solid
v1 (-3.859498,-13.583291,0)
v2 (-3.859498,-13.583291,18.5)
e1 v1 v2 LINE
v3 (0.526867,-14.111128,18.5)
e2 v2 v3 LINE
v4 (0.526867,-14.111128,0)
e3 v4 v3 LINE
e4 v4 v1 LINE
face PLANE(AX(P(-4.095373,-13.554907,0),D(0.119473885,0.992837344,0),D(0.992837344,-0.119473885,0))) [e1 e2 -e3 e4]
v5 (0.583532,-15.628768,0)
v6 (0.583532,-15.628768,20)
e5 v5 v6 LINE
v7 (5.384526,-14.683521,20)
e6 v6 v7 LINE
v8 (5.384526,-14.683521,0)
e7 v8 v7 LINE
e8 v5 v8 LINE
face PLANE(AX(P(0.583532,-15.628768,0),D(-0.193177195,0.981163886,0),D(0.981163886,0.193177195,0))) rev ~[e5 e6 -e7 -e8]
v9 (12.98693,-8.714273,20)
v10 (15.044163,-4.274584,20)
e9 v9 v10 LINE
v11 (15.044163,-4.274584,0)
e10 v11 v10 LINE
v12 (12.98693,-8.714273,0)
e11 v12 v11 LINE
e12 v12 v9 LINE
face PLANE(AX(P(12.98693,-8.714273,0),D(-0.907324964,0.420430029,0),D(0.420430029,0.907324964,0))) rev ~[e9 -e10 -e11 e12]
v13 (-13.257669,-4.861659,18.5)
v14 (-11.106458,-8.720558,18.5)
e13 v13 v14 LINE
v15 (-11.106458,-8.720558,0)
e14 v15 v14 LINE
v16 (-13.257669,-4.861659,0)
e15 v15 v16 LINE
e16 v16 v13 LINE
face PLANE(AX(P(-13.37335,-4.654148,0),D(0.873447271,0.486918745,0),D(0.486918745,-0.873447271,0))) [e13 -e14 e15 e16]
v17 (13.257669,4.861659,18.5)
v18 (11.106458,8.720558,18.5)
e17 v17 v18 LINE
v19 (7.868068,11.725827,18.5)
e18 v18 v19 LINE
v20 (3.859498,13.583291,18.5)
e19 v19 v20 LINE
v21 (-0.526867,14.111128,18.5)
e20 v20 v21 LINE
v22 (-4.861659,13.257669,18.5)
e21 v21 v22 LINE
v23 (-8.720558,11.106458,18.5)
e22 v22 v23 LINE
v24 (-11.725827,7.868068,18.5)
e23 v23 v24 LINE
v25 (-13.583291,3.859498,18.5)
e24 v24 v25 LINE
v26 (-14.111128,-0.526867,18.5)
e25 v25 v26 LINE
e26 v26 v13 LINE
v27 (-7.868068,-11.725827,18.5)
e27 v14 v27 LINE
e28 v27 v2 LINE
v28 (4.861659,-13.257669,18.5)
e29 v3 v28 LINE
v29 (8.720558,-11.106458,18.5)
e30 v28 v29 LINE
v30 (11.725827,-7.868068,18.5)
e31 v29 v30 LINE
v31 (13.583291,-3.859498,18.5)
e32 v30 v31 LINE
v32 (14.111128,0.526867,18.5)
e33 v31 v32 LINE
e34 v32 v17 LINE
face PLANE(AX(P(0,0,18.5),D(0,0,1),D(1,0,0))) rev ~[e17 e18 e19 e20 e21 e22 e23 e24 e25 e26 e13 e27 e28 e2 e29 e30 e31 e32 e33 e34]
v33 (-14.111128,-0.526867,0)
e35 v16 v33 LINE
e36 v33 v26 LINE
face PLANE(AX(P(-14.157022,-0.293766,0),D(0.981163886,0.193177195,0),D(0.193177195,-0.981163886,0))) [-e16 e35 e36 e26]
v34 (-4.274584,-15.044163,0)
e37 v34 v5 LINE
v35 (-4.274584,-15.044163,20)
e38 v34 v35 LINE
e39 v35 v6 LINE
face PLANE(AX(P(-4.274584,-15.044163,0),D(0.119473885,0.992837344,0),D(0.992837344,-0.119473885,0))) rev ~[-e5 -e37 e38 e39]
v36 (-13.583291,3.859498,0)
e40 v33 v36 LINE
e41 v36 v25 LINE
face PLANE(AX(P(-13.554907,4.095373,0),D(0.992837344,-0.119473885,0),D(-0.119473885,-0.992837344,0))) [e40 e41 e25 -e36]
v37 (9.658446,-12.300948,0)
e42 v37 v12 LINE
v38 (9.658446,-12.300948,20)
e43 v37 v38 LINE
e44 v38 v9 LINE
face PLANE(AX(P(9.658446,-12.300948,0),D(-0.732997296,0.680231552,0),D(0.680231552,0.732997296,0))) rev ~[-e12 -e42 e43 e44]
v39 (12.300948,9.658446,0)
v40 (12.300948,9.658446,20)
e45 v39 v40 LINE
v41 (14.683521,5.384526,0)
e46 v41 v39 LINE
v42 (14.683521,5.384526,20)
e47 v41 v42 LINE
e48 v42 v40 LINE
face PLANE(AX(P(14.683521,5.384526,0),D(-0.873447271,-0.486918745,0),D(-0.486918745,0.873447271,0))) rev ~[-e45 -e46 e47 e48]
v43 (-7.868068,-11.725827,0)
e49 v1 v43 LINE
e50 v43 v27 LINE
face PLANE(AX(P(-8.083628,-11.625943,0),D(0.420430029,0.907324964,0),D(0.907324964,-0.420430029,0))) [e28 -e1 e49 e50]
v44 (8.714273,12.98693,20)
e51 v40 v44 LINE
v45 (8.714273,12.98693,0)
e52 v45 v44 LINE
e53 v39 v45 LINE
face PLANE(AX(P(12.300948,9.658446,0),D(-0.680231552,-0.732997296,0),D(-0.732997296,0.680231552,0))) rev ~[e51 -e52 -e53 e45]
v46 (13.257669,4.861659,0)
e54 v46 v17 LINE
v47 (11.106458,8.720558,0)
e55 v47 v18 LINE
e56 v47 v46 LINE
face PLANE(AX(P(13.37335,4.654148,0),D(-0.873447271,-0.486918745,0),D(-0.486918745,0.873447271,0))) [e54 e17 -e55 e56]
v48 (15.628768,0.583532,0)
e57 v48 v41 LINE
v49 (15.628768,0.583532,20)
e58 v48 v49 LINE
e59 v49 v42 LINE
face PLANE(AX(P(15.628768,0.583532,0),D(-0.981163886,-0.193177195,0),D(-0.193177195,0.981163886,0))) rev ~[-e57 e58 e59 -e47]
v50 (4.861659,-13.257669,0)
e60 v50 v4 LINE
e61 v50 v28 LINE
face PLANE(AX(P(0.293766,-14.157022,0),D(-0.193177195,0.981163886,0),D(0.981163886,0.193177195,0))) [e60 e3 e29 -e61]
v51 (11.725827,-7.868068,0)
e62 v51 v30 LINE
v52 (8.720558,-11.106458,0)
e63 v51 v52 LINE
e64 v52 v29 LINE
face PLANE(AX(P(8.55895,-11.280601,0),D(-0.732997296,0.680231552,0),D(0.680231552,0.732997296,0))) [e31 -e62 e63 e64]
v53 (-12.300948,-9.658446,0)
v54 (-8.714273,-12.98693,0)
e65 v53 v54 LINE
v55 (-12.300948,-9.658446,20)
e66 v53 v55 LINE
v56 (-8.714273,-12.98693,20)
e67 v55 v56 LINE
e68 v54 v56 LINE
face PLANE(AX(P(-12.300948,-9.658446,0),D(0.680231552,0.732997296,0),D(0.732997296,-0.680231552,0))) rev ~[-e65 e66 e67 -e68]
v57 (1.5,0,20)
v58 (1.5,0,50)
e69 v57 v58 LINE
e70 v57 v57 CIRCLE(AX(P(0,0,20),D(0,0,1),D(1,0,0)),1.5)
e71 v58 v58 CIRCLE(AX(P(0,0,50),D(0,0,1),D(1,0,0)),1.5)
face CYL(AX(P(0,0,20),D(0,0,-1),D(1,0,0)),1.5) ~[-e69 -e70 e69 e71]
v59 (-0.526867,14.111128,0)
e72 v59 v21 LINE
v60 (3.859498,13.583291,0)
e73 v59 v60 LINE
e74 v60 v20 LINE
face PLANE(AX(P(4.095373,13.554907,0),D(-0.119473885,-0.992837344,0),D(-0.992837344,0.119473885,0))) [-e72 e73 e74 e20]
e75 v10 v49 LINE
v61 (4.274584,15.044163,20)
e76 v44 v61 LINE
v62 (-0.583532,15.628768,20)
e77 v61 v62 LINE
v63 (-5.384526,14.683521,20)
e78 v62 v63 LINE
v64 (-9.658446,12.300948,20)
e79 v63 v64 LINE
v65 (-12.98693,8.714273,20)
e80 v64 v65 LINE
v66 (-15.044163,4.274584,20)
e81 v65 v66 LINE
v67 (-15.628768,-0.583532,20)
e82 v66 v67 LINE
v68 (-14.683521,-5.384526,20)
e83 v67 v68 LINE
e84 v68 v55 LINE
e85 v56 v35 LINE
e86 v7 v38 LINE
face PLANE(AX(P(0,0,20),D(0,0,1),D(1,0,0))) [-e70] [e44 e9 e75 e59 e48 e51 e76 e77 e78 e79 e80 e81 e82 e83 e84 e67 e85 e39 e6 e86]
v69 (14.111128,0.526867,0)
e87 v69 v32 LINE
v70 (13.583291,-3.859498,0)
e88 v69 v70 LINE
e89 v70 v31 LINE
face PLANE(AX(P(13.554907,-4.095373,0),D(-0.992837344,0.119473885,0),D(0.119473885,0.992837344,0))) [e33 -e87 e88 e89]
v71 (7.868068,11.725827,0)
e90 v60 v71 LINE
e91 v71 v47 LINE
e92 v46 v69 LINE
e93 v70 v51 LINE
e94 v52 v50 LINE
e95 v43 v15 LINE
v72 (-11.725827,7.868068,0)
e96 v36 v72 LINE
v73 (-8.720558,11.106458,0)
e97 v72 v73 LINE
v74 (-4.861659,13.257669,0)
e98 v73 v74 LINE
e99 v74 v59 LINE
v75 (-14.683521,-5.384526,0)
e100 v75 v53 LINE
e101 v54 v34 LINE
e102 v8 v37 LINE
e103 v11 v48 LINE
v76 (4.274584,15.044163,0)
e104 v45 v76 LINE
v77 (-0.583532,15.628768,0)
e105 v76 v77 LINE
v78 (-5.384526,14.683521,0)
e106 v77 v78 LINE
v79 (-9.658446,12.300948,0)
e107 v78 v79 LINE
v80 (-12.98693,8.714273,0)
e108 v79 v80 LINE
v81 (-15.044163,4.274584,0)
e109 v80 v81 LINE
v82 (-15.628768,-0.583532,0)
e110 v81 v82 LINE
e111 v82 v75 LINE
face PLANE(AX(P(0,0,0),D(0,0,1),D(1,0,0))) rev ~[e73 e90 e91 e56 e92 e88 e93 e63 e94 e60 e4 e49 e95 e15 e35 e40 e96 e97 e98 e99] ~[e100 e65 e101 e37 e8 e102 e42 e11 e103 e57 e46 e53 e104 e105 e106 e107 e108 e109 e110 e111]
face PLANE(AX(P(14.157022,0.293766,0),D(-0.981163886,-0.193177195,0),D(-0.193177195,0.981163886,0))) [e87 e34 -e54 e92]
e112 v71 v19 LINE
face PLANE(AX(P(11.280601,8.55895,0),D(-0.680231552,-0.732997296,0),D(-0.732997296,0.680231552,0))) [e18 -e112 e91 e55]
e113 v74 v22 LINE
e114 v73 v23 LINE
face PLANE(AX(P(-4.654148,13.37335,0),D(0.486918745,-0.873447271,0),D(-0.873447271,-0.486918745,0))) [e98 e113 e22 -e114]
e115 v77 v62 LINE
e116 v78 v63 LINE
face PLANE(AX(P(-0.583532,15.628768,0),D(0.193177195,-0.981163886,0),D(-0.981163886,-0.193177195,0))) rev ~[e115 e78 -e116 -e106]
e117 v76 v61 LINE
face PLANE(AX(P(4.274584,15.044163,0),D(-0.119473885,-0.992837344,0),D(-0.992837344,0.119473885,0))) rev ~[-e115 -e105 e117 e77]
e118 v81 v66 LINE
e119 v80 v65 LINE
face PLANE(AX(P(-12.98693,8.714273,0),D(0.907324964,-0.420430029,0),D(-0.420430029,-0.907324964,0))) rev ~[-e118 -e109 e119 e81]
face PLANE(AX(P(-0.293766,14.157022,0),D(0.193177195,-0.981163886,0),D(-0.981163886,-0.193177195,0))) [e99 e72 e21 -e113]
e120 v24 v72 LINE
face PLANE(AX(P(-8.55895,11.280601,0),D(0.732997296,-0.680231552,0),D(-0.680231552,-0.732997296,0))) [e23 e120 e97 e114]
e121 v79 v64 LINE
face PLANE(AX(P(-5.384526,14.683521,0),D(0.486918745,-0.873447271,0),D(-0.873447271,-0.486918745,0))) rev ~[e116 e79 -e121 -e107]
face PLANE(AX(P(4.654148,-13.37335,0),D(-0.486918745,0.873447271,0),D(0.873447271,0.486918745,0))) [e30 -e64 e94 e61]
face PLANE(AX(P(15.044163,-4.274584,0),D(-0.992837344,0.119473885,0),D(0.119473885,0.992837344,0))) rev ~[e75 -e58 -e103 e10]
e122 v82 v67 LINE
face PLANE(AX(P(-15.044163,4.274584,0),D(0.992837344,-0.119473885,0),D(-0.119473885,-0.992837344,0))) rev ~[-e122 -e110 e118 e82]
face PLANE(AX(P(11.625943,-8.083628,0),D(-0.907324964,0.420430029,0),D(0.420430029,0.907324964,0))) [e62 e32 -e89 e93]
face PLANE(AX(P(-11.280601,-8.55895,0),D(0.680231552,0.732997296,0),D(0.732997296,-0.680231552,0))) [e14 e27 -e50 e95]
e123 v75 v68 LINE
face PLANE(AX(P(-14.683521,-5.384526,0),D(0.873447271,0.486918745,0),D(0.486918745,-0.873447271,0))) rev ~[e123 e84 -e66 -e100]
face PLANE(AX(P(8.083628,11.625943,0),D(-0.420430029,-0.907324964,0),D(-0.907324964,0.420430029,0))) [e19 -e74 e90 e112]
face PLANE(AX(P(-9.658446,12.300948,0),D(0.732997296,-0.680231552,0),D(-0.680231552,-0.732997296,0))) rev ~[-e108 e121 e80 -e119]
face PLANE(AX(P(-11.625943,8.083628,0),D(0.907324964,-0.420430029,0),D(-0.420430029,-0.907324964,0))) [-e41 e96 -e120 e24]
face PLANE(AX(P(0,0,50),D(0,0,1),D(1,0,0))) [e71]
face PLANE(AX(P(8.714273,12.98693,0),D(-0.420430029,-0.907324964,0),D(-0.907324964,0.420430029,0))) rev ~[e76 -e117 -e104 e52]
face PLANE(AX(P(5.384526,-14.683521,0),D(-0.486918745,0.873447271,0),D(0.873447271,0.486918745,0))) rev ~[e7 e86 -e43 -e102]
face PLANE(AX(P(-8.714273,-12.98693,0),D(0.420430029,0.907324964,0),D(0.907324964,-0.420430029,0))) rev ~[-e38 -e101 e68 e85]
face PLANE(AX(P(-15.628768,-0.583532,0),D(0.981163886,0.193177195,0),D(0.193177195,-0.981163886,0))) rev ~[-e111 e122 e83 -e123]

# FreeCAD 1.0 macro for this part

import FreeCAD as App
import Part
import Sketcher


def faces_at(feature, points):
    """Names of the faces that lie closest to the given points."""
    faces = feature.Shape.Faces
    near = lambda p: min(range(len(faces)), key=lambda i: faces[i].distToShape(Part.Vertex(*p))[0])
    return sorted({f"Face{near(p) + 1}" for p in points})


def add_polygon(sketch, points):
    """Adds a closed chain of lines whose ends are joined by coincident constraints."""
    first, n = sketch.GeometryCount, len(points)
    for a, b in zip(points, points[1:] + points[:1]):
        sketch.addGeometry(Part.LineSegment(App.Vector(*a, 0), App.Vector(*b, 0)), False)
    for i in range(n):
        sketch.addConstraint(Sketcher.Constraint("Coincident", first + i, 2, first + (i + 1) % n, 1))

doc = App.newDocument("Part")
params = doc.addObject("Spreadsheet::Sheet", "Params")
for row, (alias, value) in enumerate([
    ("pad1_length", "20 mm"),
    ("thickness_wall", "1.5 mm"),
    ("sketch2_diameter", "3 mm"),
    ("pad2_length", "30 mm"),
], start=1):
    params.set(f"A{row}", alias)
    params.set(f"B{row}", "=" + value)
    params.setAlias(f"B{row}", alias)

body = doc.addObject("PartDesign::Body", "Body")

sketch1 = body.newObject("Sketcher::SketchObject", "Sketch")
sketch1.AttachmentSupport = (doc.getObject("XY_Plane"), [""])
sketch1.MapMode = "FlatFace"
add_polygon(sketch1, [(-12.98693, 8.714273), (-15.044163, 4.274584), (-15.628768, -0.583532), (-14.683521, -5.384526), (-12.300948, -9.658446), (-8.714273, -12.98693), (-4.274584, -15.044163), (0.583532, -15.628768), (5.384526, -14.683521), (9.658446, -12.300948), (12.98693, -8.714273), (15.044163, -4.274584), (15.628768, 0.583532), (14.683521, 5.384526), (12.300948, 9.658446), (8.714273, 12.98693), (4.274584, 15.044163), (-0.583532, 15.628768), (-5.384526, 14.683521), (-9.658446, 12.300948)])
sketch1.addConstraint([
    Sketcher.Constraint("Symmetric", 0, 2, 10, 2, -1, 1),
    Sketcher.Constraint("Symmetric", 1, 2, 11, 2, -1, 1),
    Sketcher.Constraint("Symmetric", 2, 2, 12, 2, -1, 1),
    Sketcher.Constraint("Symmetric", 3, 2, 13, 2, -1, 1),
    Sketcher.Constraint("Symmetric", 4, 2, 14, 2, -1, 1),
    Sketcher.Constraint("Symmetric", 5, 2, 15, 2, -1, 1),
    Sketcher.Constraint("Symmetric", 6, 2, 16, 2, -1, 1),
    Sketcher.Constraint("Symmetric", 7, 2, 17, 2, -1, 1),
    Sketcher.Constraint("Symmetric", 8, 2, 18, 2, -1, 1),
    Sketcher.Constraint("Symmetric", 9, 2, 19, 2, -1, 1),
    Sketcher.Constraint("Perpendicular", 0, 5),
    Sketcher.Constraint("Perpendicular", 1, 6),
    Sketcher.Constraint("Perpendicular", 2, 7),
    Sketcher.Constraint("Perpendicular", 3, 8),
    Sketcher.Constraint("Perpendicular", 4, 9),
    Sketcher.Constraint("Equal", 0, 1),
    Sketcher.Constraint("Equal", 1, 2),
    Sketcher.Constraint("Equal", 2, 3),
    Sketcher.Constraint("Equal", 3, 4),
    Sketcher.Constraint("Equal", 4, 5),
    Sketcher.Constraint("Equal", 5, 6),
    Sketcher.Constraint("Equal", 6, 7),
    Sketcher.Constraint("Equal", 7, 8),
    Sketcher.Constraint("Equal", 8, 9),
    Sketcher.Constraint("DistanceY", 4, 2, 1, 2, 12.403399),
    Sketcher.Constraint("DistanceX", 1, 2, 6, 2, 16.2123),
    Sketcher.Constraint("DistanceX", 4, 2, 7, 2, 14.098799),
    Sketcher.Constraint("DistanceY", 8, 2, 3, 2, 2.642501),
    Sketcher.Constraint("DistanceX", 1, 2, -1, 1, 15.628768),
    Sketcher.Constraint("DistanceY", 2, 2, 0, 2, 9.65911),
])
pad1 = body.newObject("PartDesign::Pad", "Pad")
pad1.Profile = sketch1
pad1.setExpression("Length", "Params.pad1_length")
doc.recompute()

thickness = body.newObject("PartDesign::Thickness", "Thickness")
thickness.Base = (pad1, faces_at(pad1, [(0, 0, 0)]))
thickness.setExpression("Value", "Params.thickness_wall")
thickness.Reversed = True
thickness.Join = "Intersection"

sketch2 = body.newObject("Sketcher::SketchObject", "Sketch001")
sketch2.AttachmentSupport = (doc.getObject("XY_Plane"), [""])
sketch2.MapMode = "FlatFace"
sketch2.AttachmentOffset = App.Placement(App.Vector(0, 0, 20), App.Rotation())
sketch2.addGeometry(Part.Circle(App.Vector(0, 0, 0), App.Vector(0, 0, 1), 1.5), False)
sketch2.addConstraint([
    Sketcher.Constraint("Coincident", 0, 3, -1, 1),
    Sketcher.Constraint("Diameter", 0, 3.0),
])
sketch2.setExpression("Constraints[1]", "Params.sketch2_diameter")
pad2 = body.newObject("PartDesign::Pad", "Pad001")
pad2.Profile = sketch2
pad2.setExpression("Length", "Params.pad2_length")

doc.recompute()
